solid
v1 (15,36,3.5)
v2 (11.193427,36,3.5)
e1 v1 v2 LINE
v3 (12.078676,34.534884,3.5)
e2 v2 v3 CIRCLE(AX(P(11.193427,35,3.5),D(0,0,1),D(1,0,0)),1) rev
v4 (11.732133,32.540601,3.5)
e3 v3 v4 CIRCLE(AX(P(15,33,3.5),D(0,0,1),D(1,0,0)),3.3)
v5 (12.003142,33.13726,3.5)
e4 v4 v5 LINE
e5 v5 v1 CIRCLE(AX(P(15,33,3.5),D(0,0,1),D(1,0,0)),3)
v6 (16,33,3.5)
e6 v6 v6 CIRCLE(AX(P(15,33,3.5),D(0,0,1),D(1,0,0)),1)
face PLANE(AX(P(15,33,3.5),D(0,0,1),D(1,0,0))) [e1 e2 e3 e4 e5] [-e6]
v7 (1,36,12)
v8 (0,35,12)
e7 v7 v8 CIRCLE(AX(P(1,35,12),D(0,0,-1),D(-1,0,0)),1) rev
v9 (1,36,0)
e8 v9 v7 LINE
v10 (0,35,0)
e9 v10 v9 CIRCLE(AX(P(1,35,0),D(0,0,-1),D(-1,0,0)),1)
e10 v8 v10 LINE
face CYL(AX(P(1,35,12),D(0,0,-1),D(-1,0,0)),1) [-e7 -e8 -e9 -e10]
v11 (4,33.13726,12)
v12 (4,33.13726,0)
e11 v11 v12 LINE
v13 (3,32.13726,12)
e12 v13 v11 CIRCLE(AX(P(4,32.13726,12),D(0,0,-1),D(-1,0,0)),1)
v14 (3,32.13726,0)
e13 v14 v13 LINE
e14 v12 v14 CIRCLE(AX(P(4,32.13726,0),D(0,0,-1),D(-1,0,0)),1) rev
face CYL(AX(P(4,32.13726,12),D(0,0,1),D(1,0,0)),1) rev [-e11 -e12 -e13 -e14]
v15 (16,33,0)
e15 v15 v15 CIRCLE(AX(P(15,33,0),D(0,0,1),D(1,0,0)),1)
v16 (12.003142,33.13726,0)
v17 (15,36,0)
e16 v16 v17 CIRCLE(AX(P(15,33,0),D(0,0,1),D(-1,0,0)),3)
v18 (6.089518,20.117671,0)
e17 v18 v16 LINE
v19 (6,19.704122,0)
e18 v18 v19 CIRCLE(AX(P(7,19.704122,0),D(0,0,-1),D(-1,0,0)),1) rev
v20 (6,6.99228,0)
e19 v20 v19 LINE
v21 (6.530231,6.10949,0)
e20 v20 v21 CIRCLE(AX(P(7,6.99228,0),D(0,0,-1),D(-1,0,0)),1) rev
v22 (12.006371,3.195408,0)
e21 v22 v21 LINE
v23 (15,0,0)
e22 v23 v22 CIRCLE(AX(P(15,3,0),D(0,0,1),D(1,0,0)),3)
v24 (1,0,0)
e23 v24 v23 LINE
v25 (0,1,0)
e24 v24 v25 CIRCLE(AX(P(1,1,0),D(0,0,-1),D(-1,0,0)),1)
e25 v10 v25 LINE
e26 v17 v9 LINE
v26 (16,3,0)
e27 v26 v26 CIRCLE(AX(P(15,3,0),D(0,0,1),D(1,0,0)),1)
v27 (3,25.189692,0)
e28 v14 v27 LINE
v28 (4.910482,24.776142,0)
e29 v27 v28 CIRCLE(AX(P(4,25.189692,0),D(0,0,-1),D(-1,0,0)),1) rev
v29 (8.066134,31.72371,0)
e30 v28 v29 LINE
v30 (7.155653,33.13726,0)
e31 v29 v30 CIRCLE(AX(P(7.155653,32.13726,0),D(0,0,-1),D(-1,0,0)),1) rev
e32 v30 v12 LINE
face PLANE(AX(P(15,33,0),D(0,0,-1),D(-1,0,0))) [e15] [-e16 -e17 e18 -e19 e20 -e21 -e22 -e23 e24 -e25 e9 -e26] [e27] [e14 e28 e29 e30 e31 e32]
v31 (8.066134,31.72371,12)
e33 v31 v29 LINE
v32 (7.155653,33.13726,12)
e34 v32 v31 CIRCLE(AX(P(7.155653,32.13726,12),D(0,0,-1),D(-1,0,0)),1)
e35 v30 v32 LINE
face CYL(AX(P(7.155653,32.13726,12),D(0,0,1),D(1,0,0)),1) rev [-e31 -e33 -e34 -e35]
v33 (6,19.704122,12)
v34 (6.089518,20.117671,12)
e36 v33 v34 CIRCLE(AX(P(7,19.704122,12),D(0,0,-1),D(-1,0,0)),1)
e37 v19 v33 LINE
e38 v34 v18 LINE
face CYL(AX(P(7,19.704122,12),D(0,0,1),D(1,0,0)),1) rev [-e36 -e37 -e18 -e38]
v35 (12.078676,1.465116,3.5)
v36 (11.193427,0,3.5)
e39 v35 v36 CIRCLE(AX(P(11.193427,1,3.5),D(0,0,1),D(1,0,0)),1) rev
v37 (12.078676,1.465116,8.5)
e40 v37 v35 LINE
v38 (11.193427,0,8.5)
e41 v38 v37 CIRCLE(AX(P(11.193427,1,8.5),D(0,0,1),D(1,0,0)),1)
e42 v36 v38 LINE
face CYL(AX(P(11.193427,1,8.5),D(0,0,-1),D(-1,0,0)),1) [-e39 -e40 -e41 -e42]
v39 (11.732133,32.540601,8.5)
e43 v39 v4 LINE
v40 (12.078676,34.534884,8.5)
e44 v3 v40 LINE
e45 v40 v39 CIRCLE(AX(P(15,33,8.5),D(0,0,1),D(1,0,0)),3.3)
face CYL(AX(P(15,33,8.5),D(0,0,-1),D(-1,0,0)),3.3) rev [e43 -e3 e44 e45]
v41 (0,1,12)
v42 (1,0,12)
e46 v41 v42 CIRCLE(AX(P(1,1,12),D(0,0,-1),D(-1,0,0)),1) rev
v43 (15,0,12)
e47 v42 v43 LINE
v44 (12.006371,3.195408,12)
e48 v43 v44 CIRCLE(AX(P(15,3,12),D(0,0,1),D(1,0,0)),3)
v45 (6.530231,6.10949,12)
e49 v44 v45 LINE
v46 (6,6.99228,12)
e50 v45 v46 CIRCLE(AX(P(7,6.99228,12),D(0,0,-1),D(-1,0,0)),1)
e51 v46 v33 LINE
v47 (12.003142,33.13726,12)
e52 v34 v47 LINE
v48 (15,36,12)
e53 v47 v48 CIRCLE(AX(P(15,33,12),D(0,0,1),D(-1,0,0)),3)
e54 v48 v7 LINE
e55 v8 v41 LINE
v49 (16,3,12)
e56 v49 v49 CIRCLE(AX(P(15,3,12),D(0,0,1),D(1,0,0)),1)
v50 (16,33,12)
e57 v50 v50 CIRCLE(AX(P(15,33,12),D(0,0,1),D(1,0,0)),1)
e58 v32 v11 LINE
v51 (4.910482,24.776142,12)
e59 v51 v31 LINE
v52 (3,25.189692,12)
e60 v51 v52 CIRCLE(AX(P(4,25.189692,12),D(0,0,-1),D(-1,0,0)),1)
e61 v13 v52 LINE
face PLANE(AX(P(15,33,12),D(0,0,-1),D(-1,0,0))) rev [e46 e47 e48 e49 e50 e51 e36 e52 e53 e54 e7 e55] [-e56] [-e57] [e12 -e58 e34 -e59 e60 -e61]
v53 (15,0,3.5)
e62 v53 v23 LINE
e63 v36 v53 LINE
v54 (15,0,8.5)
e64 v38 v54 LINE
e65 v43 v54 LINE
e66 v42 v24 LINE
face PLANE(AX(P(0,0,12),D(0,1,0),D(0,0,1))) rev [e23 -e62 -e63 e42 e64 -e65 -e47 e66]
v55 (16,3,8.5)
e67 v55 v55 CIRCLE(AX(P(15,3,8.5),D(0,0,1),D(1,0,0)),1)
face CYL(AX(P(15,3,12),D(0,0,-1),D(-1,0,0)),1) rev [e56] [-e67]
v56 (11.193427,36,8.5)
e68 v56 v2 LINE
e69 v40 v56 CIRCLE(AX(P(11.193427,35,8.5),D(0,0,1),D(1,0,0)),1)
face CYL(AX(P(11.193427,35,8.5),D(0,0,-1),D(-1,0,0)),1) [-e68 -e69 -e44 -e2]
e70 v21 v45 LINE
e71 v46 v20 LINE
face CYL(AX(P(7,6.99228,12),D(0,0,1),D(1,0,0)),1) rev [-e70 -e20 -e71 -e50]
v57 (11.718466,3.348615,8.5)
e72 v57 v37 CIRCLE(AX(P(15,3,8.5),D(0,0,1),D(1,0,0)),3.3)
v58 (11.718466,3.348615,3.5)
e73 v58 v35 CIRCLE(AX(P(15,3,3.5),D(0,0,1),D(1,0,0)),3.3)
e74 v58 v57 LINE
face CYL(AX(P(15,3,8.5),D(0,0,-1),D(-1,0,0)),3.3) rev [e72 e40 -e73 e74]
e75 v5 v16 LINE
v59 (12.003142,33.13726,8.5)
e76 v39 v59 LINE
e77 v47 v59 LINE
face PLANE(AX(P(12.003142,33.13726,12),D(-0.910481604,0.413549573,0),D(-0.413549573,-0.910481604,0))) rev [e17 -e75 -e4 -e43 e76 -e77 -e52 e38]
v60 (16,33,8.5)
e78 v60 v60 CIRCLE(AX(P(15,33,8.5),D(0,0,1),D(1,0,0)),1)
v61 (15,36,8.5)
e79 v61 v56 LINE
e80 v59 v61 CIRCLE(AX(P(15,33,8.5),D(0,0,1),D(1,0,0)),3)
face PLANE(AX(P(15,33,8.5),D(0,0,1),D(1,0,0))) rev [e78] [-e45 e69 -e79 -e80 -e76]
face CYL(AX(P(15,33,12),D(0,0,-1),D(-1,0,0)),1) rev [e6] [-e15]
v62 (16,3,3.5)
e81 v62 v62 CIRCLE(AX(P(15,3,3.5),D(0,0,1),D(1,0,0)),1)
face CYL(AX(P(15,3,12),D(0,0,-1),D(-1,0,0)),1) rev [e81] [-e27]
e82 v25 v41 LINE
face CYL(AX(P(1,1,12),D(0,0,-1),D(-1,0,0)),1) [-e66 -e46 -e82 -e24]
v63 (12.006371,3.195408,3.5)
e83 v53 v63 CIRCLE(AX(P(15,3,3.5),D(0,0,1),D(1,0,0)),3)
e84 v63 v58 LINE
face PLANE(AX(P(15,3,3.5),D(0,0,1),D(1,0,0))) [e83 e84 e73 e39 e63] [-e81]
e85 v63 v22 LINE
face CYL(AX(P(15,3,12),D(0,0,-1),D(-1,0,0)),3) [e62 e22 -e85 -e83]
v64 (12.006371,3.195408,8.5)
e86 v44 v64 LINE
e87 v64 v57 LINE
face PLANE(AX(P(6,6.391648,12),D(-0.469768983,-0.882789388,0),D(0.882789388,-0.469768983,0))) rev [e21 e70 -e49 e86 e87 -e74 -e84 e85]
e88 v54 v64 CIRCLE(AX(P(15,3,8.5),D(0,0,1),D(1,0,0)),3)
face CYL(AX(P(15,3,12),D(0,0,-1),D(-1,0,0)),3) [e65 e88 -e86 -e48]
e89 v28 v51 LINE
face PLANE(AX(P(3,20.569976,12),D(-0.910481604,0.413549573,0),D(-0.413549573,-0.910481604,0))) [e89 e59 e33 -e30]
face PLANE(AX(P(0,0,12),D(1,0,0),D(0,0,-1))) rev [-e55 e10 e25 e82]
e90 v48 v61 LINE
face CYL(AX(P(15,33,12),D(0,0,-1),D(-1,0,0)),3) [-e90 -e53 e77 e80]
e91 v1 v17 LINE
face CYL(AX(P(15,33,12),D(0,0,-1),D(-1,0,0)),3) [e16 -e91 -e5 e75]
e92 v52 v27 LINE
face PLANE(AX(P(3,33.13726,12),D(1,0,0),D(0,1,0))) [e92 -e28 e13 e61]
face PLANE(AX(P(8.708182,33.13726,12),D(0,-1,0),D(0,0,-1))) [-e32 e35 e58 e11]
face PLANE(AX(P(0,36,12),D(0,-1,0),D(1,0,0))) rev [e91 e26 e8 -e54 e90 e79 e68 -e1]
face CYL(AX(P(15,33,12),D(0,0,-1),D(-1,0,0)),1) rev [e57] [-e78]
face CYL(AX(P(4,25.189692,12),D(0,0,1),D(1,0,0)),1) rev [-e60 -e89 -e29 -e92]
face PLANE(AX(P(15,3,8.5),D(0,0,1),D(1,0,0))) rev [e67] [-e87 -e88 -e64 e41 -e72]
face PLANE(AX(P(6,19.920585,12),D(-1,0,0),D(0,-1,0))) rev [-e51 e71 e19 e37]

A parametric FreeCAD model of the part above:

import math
import FreeCAD as App
import Part
import Sketcher
from FreeCAD import Vector


def edges_at(feature, points):
    """Names of the edges that pass closest to the given points."""
    edges = feature.Shape.Edges
    near = lambda p: min(range(len(edges)), key=lambda i: edges[i].distToShape(Part.Vertex(*p))[0])
    return sorted({f"Edge{near(p) + 1}" for p in points})

doc = App.newDocument("Part")
body = doc.addObject("PartDesign::Body", "Body")

# Sketch on XY plane
sketch1 = body.newObject("Sketcher::SketchObject", "Sketch")
sketch1.AttachmentSupport = (doc.getObject("XY_Plane"), [""])
sketch1.MapMode = "FlatFace"
sketch1.addGeometry([
    Part.LineSegment(Vector(0, 0, 0), Vector(15, 0, 0)),  # 0
    Part.ArcOfCircle(Part.Circle(Vector(15, 3, 0), Vector(0, 0, 1), 3), math.radians(-90), math.radians(176)),  # 1
    Part.LineSegment(Vector(12, 3.2, 0), Vector(6, 6.4, 0)),  # 2
    Part.LineSegment(Vector(6, 6.4, 0), Vector(6, 19.9, 0)),  # 3
    Part.LineSegment(Vector(6, 19.9, 0), Vector(12, 33.1, 0)),  # 4
    Part.ArcOfCircle(Part.Circle(Vector(15, 33, 0), Vector(0, 0, 1), 3), math.radians(177), math.radians(450)),  # 5
    Part.LineSegment(Vector(15, 36, 0), Vector(0, 36, 0)),  # 6
    Part.LineSegment(Vector(0, 36, 0), Vector(0, 0, 0)),  # 7
    Part.Circle(Vector(15, 3, 0), Vector(0, 0, 1), 1),  # 8
    Part.LineSegment(Vector(3, 33.1, 0), Vector(8.7, 33.1, 0)),  # 9
    Part.LineSegment(Vector(8.7, 33.1, 0), Vector(3, 20.6, 0)),  # 10
    Part.LineSegment(Vector(3, 20.6, 0), Vector(3, 33.1, 0)),  # 11
    Part.Circle(Vector(15, 33, 0), Vector(0, 0, 1), 1),  # 12
], False)
sketch1.addConstraint([
    Sketcher.Constraint("Tangent", 0, 2, 1, 1),
    Sketcher.Constraint("Coincident", 1, 2, 2, 1),
    Sketcher.Constraint("Coincident", 2, 2, 3, 1),
    Sketcher.Constraint("Coincident", 3, 2, 4, 1),
    Sketcher.Constraint("Coincident", 4, 2, 5, 1),
    Sketcher.Constraint("Tangent", 5, 2, 6, 1),
    Sketcher.Constraint("Coincident", 6, 2, 7, 1),
    Sketcher.Constraint("Coincident", 7, 2, 0, 1),
    Sketcher.Constraint("Coincident", 9, 2, 10, 1),
    Sketcher.Constraint("Coincident", 10, 2, 11, 1),
    Sketcher.Constraint("Coincident", 11, 2, 9, 1),
    Sketcher.Constraint("Horizontal", 0),
    Sketcher.Constraint("Vertical", 3),
    Sketcher.Constraint("Horizontal", 6),
    Sketcher.Constraint("Vertical", 7),
    Sketcher.Constraint("Horizontal", 9),
    Sketcher.Constraint("Vertical", 11),
    Sketcher.Constraint("Coincident", 7, 2, -1, 1),
    Sketcher.Constraint("Coincident", 8, 3, 1, 3),
    Sketcher.Constraint("Coincident", 12, 3, 5, 3),
    Sketcher.Constraint("Equal", 1, 5),
    Sketcher.Constraint("Equal", 8, 12),
    Sketcher.Constraint("Parallel", 4, 10),
    Sketcher.Constraint("Horizontal", 4, 2, 9, 2),
    Sketcher.Constraint("Vertical", 1, 3, 5, 3),
    Sketcher.Constraint("Diameter", 8, 2.0),
    Sketcher.Constraint("Radius", 1, 3.0),
    Sketcher.Constraint("DistanceX", 0, 1, 0, 2, 15.0),
    Sketcher.Constraint("DistanceY", 7, 2, 7, 1, 36.0),
    Sketcher.Constraint("DistanceX", -1, 1, 2, 2, 6.0),
    Sketcher.Constraint("DistanceX", -1, 1, 10, 2, 3.0),
    Sketcher.Constraint("DistanceX", 9, 1, 9, 2, 5.708182),
    Sketcher.Constraint("DistanceY", 3, 1, 3, 2, 13.528937),
    Sketcher.Constraint("DistanceY", 11, 1, 11, 2, 12.567284),
    Sketcher.Constraint("DistanceX", -1, 1, 1, 2, 12.006371),
    Sketcher.Constraint("DistanceY", -1, 1, 2, 2, 6.391648),
])
pad1 = body.newObject("PartDesign::Pad", "Pad")
pad1.Profile = sketch1
pad1.Length = 12

# Sketch on XY plane
sketch2 = body.newObject("Sketcher::SketchObject", "Sketch001")
sketch2.AttachmentSupport = (doc.getObject("XY_Plane"), [""])
sketch2.MapMode = "FlatFace"
sketch2.AttachmentOffset = App.Placement(Vector(0, 0, 6), App.Rotation())
sketch2.addGeometry([
    Part.Circle(Vector(15, 33, 0), Vector(0, 0, 1), 3.3),
    Part.Circle(Vector(15, 3, 0), Vector(0, 0, 1), 3.3),
], False)
sketch2.addConstraint([
    Sketcher.Constraint("Equal", 0, 1),
    Sketcher.Constraint("Vertical", 0, 3, 1, 3),
    Sketcher.Constraint("Diameter", 0, 6.6),
    Sketcher.Constraint("DistanceX", -1, 1, 0, 3, 15.0),
    Sketcher.Constraint("DistanceY", -1, 1, 0, 3, 33.0),
    Sketcher.Constraint("DistanceY", -1, 1, 1, 3, 3.0),
])
pocket1 = body.newObject("PartDesign::Pocket", "Pocket")
pocket1.Profile = sketch2
pocket1.Type = "TwoLengths"
pocket1.Length = 2.5
pocket1.Length2 = 2.5
pocket1.Reversed = True
doc.recompute()

fillet = body.newObject("PartDesign::Fillet", "Fillet")
fillet.Base = (pocket1, edges_at(pocket1, [(0, 36, 6), (0, 0, 6)]))
fillet.Radius = 1
doc.recompute()

fillet2 = body.newObject("PartDesign::Fillet", "Fillet001")
fillet2.Base = (fillet, edges_at(fillet, [(6, 19.921, 6), (6, 6.392, 6)]))
fillet2.Radius = 1
doc.recompute()

fillet3 = body.newObject("PartDesign::Fillet", "Fillet002")
fillet3.Base = (fillet2, edges_at(fillet2, [(13.625, 36, 6), (13.625, 0, 6)]))
fillet3.Radius = 1
doc.recompute()

fillet4 = body.newObject("PartDesign::Fillet", "Fillet003")
fillet4.Base = (fillet3, edges_at(fillet3, [(3, 20.57, 6), (8.708, 33.137, 6), (3, 33.137, 6)]))
fillet4.Radius = 1

doc.recompute()
